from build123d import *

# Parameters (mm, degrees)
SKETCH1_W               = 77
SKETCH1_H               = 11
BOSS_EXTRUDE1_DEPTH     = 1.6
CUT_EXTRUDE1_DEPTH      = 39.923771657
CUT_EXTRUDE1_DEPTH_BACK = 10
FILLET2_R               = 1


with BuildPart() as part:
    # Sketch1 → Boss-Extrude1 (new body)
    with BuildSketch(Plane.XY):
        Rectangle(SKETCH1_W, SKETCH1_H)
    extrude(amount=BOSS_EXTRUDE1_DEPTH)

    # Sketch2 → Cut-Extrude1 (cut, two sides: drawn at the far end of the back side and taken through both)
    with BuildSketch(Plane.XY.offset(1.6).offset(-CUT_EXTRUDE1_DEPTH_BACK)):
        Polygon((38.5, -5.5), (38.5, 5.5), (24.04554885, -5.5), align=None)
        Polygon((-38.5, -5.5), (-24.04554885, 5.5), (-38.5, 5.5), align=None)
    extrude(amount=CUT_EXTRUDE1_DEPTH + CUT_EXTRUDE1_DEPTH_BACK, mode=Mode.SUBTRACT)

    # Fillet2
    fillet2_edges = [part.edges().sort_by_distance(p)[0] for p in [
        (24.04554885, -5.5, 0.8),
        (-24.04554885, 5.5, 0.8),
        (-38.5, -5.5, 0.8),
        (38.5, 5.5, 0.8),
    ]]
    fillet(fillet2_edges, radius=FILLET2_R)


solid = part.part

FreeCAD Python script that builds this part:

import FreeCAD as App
import Part
import Sketcher

V = App.Vector
Q = App.Units.Quantity


def edges_at(feature, points):
    """Names of the edges that pass closest to the given points."""
    edges = feature.Shape.Edges
    near = lambda p: min(range(len(edges)), key=lambda i: edges[i].distToShape(Part.Vertex(*p))[0])
    return sorted({f"Edge{near(p) + 1}" for p in points})

doc = App.newDocument("Part")
body = doc.addObject("PartDesign::Body", "Body")

sketch1 = body.newObject("Sketcher::SketchObject", "Sketch")
sketch1.AttachmentSupport = (doc.getObject("XY_Plane"), [""])
sketch1.MapMode = "FlatFace"
sketch1.addGeometry(Part.LineSegment(V(-38, 6, 0), V(-38, -6, 0)), False)
sketch1.addGeometry(Part.LineSegment(V(-38, -6, 0), V(38, -6, 0)), False)
sketch1.addGeometry(Part.LineSegment(V(38, -6, 0), V(38, 6, 0)), False)
sketch1.addGeometry(Part.LineSegment(V(38, 6, 0), V(-38, 6, 0)), False)
sketch1.addConstraint(Sketcher.Constraint("Coincident", 0, 2, 1, 1))
sketch1.addConstraint(Sketcher.Constraint("Coincident", 1, 2, 2, 1))
sketch1.addConstraint(Sketcher.Constraint("Coincident", 2, 2, 3, 1))
sketch1.addConstraint(Sketcher.Constraint("Coincident", 3, 2, 0, 1))
sketch1.addConstraint(Sketcher.Constraint("Vertical", 0))
sketch1.addConstraint(Sketcher.Constraint("Horizontal", 1))
sketch1.addConstraint(Sketcher.Constraint("Vertical", 2))
sketch1.addConstraint(Sketcher.Constraint("Horizontal", 3))
sketch1.addConstraint(Sketcher.Constraint("Symmetric", 0, 2, 2, 2, -1, 1))
sketch1.addConstraint(Sketcher.Constraint("DistanceX", 1, 1, 1, 2, Q("77 mm")))
sketch1.addConstraint(Sketcher.Constraint("DistanceY", 0, 2, 0, 1, Q("11 mm")))
pad1 = body.newObject("PartDesign::Pad", "Pad")
pad1.Profile = sketch1
pad1.Length = 1.6

sketch2 = body.newObject("Sketcher::SketchObject", "Sketch001")
sketch2.AttachmentSupport = (doc.getObject("XY_Plane"), [""])
sketch2.MapMode = "FlatFace"
sketch2.AttachmentOffset = App.Placement(V(0, 0, 1.6), App.Rotation())
sketch2.addGeometry(Part.LineSegment(V(38, -6, 0), V(38, 6, 0)), False)
sketch2.addGeometry(Part.LineSegment(V(38, 6, 0), V(24, -6, 0)), False)
sketch2.addGeometry(Part.LineSegment(V(24, -6, 0), V(38, -6, 0)), False)
sketch2.addGeometry(Part.LineSegment(V(-38, -6, 0), V(-24, 6, 0)), False)
sketch2.addGeometry(Part.LineSegment(V(-24, 6, 0), V(-38, 6, 0)), False)
sketch2.addGeometry(Part.LineSegment(V(-38, 6, 0), V(-38, -6, 0)), False)
sketch2.addConstraint(Sketcher.Constraint("Coincident", 0, 2, 1, 1))
sketch2.addConstraint(Sketcher.Constraint("Coincident", 1, 2, 2, 1))
sketch2.addConstraint(Sketcher.Constraint("Coincident", 2, 2, 0, 1))
sketch2.addConstraint(Sketcher.Constraint("Coincident", 3, 2, 4, 1))
sketch2.addConstraint(Sketcher.Constraint("Coincident", 4, 2, 5, 1))
sketch2.addConstraint(Sketcher.Constraint("Coincident", 5, 2, 3, 1))
sketch2.addConstraint(Sketcher.Constraint("Vertical", 0))
sketch2.addConstraint(Sketcher.Constraint("Horizontal", 2))
sketch2.addConstraint(Sketcher.Constraint("Horizontal", 4))
sketch2.addConstraint(Sketcher.Constraint("Vertical", 5))
sketch2.addConstraint(Sketcher.Constraint("Symmetric", 1, 2, 3, 2, -1, 1))
sketch2.addConstraint(Sketcher.Constraint("Symmetric", 0, 2, 5, 2, -1, 1))
sketch2.addConstraint(Sketcher.Constraint("Horizontal", 0, 2, 3, 2))
sketch2.addConstraint(Sketcher.Constraint("DistanceY", 0, 1, 0, 2, Q("11 mm")))
sketch2.addConstraint(Sketcher.Constraint("DistanceX", 4, 2, 0, 2, Q("77 mm")))
sketch2.addConstraint(Sketcher.Constraint("DistanceX", 2, 1, 2, 2, Q("14.454451 mm")))
pocket1 = body.newObject("PartDesign::Pocket", "Pocket")
pocket1.Profile = sketch2
pocket1.Type = "ThroughAll"
pocket1.Midplane = True
doc.recompute()

fillet = body.newObject("PartDesign::Fillet", "Fillet")
fillet.Base = (pocket1, edges_at(pocket1, [
    (24.046, -5.5, 0.8),
    (-24.046, 5.5, 0.8),
    (-38.5, -5.5, 0.8),
    (38.5, 5.5, 0.8),
]))
fillet.Radius = 1

doc.recompute()
